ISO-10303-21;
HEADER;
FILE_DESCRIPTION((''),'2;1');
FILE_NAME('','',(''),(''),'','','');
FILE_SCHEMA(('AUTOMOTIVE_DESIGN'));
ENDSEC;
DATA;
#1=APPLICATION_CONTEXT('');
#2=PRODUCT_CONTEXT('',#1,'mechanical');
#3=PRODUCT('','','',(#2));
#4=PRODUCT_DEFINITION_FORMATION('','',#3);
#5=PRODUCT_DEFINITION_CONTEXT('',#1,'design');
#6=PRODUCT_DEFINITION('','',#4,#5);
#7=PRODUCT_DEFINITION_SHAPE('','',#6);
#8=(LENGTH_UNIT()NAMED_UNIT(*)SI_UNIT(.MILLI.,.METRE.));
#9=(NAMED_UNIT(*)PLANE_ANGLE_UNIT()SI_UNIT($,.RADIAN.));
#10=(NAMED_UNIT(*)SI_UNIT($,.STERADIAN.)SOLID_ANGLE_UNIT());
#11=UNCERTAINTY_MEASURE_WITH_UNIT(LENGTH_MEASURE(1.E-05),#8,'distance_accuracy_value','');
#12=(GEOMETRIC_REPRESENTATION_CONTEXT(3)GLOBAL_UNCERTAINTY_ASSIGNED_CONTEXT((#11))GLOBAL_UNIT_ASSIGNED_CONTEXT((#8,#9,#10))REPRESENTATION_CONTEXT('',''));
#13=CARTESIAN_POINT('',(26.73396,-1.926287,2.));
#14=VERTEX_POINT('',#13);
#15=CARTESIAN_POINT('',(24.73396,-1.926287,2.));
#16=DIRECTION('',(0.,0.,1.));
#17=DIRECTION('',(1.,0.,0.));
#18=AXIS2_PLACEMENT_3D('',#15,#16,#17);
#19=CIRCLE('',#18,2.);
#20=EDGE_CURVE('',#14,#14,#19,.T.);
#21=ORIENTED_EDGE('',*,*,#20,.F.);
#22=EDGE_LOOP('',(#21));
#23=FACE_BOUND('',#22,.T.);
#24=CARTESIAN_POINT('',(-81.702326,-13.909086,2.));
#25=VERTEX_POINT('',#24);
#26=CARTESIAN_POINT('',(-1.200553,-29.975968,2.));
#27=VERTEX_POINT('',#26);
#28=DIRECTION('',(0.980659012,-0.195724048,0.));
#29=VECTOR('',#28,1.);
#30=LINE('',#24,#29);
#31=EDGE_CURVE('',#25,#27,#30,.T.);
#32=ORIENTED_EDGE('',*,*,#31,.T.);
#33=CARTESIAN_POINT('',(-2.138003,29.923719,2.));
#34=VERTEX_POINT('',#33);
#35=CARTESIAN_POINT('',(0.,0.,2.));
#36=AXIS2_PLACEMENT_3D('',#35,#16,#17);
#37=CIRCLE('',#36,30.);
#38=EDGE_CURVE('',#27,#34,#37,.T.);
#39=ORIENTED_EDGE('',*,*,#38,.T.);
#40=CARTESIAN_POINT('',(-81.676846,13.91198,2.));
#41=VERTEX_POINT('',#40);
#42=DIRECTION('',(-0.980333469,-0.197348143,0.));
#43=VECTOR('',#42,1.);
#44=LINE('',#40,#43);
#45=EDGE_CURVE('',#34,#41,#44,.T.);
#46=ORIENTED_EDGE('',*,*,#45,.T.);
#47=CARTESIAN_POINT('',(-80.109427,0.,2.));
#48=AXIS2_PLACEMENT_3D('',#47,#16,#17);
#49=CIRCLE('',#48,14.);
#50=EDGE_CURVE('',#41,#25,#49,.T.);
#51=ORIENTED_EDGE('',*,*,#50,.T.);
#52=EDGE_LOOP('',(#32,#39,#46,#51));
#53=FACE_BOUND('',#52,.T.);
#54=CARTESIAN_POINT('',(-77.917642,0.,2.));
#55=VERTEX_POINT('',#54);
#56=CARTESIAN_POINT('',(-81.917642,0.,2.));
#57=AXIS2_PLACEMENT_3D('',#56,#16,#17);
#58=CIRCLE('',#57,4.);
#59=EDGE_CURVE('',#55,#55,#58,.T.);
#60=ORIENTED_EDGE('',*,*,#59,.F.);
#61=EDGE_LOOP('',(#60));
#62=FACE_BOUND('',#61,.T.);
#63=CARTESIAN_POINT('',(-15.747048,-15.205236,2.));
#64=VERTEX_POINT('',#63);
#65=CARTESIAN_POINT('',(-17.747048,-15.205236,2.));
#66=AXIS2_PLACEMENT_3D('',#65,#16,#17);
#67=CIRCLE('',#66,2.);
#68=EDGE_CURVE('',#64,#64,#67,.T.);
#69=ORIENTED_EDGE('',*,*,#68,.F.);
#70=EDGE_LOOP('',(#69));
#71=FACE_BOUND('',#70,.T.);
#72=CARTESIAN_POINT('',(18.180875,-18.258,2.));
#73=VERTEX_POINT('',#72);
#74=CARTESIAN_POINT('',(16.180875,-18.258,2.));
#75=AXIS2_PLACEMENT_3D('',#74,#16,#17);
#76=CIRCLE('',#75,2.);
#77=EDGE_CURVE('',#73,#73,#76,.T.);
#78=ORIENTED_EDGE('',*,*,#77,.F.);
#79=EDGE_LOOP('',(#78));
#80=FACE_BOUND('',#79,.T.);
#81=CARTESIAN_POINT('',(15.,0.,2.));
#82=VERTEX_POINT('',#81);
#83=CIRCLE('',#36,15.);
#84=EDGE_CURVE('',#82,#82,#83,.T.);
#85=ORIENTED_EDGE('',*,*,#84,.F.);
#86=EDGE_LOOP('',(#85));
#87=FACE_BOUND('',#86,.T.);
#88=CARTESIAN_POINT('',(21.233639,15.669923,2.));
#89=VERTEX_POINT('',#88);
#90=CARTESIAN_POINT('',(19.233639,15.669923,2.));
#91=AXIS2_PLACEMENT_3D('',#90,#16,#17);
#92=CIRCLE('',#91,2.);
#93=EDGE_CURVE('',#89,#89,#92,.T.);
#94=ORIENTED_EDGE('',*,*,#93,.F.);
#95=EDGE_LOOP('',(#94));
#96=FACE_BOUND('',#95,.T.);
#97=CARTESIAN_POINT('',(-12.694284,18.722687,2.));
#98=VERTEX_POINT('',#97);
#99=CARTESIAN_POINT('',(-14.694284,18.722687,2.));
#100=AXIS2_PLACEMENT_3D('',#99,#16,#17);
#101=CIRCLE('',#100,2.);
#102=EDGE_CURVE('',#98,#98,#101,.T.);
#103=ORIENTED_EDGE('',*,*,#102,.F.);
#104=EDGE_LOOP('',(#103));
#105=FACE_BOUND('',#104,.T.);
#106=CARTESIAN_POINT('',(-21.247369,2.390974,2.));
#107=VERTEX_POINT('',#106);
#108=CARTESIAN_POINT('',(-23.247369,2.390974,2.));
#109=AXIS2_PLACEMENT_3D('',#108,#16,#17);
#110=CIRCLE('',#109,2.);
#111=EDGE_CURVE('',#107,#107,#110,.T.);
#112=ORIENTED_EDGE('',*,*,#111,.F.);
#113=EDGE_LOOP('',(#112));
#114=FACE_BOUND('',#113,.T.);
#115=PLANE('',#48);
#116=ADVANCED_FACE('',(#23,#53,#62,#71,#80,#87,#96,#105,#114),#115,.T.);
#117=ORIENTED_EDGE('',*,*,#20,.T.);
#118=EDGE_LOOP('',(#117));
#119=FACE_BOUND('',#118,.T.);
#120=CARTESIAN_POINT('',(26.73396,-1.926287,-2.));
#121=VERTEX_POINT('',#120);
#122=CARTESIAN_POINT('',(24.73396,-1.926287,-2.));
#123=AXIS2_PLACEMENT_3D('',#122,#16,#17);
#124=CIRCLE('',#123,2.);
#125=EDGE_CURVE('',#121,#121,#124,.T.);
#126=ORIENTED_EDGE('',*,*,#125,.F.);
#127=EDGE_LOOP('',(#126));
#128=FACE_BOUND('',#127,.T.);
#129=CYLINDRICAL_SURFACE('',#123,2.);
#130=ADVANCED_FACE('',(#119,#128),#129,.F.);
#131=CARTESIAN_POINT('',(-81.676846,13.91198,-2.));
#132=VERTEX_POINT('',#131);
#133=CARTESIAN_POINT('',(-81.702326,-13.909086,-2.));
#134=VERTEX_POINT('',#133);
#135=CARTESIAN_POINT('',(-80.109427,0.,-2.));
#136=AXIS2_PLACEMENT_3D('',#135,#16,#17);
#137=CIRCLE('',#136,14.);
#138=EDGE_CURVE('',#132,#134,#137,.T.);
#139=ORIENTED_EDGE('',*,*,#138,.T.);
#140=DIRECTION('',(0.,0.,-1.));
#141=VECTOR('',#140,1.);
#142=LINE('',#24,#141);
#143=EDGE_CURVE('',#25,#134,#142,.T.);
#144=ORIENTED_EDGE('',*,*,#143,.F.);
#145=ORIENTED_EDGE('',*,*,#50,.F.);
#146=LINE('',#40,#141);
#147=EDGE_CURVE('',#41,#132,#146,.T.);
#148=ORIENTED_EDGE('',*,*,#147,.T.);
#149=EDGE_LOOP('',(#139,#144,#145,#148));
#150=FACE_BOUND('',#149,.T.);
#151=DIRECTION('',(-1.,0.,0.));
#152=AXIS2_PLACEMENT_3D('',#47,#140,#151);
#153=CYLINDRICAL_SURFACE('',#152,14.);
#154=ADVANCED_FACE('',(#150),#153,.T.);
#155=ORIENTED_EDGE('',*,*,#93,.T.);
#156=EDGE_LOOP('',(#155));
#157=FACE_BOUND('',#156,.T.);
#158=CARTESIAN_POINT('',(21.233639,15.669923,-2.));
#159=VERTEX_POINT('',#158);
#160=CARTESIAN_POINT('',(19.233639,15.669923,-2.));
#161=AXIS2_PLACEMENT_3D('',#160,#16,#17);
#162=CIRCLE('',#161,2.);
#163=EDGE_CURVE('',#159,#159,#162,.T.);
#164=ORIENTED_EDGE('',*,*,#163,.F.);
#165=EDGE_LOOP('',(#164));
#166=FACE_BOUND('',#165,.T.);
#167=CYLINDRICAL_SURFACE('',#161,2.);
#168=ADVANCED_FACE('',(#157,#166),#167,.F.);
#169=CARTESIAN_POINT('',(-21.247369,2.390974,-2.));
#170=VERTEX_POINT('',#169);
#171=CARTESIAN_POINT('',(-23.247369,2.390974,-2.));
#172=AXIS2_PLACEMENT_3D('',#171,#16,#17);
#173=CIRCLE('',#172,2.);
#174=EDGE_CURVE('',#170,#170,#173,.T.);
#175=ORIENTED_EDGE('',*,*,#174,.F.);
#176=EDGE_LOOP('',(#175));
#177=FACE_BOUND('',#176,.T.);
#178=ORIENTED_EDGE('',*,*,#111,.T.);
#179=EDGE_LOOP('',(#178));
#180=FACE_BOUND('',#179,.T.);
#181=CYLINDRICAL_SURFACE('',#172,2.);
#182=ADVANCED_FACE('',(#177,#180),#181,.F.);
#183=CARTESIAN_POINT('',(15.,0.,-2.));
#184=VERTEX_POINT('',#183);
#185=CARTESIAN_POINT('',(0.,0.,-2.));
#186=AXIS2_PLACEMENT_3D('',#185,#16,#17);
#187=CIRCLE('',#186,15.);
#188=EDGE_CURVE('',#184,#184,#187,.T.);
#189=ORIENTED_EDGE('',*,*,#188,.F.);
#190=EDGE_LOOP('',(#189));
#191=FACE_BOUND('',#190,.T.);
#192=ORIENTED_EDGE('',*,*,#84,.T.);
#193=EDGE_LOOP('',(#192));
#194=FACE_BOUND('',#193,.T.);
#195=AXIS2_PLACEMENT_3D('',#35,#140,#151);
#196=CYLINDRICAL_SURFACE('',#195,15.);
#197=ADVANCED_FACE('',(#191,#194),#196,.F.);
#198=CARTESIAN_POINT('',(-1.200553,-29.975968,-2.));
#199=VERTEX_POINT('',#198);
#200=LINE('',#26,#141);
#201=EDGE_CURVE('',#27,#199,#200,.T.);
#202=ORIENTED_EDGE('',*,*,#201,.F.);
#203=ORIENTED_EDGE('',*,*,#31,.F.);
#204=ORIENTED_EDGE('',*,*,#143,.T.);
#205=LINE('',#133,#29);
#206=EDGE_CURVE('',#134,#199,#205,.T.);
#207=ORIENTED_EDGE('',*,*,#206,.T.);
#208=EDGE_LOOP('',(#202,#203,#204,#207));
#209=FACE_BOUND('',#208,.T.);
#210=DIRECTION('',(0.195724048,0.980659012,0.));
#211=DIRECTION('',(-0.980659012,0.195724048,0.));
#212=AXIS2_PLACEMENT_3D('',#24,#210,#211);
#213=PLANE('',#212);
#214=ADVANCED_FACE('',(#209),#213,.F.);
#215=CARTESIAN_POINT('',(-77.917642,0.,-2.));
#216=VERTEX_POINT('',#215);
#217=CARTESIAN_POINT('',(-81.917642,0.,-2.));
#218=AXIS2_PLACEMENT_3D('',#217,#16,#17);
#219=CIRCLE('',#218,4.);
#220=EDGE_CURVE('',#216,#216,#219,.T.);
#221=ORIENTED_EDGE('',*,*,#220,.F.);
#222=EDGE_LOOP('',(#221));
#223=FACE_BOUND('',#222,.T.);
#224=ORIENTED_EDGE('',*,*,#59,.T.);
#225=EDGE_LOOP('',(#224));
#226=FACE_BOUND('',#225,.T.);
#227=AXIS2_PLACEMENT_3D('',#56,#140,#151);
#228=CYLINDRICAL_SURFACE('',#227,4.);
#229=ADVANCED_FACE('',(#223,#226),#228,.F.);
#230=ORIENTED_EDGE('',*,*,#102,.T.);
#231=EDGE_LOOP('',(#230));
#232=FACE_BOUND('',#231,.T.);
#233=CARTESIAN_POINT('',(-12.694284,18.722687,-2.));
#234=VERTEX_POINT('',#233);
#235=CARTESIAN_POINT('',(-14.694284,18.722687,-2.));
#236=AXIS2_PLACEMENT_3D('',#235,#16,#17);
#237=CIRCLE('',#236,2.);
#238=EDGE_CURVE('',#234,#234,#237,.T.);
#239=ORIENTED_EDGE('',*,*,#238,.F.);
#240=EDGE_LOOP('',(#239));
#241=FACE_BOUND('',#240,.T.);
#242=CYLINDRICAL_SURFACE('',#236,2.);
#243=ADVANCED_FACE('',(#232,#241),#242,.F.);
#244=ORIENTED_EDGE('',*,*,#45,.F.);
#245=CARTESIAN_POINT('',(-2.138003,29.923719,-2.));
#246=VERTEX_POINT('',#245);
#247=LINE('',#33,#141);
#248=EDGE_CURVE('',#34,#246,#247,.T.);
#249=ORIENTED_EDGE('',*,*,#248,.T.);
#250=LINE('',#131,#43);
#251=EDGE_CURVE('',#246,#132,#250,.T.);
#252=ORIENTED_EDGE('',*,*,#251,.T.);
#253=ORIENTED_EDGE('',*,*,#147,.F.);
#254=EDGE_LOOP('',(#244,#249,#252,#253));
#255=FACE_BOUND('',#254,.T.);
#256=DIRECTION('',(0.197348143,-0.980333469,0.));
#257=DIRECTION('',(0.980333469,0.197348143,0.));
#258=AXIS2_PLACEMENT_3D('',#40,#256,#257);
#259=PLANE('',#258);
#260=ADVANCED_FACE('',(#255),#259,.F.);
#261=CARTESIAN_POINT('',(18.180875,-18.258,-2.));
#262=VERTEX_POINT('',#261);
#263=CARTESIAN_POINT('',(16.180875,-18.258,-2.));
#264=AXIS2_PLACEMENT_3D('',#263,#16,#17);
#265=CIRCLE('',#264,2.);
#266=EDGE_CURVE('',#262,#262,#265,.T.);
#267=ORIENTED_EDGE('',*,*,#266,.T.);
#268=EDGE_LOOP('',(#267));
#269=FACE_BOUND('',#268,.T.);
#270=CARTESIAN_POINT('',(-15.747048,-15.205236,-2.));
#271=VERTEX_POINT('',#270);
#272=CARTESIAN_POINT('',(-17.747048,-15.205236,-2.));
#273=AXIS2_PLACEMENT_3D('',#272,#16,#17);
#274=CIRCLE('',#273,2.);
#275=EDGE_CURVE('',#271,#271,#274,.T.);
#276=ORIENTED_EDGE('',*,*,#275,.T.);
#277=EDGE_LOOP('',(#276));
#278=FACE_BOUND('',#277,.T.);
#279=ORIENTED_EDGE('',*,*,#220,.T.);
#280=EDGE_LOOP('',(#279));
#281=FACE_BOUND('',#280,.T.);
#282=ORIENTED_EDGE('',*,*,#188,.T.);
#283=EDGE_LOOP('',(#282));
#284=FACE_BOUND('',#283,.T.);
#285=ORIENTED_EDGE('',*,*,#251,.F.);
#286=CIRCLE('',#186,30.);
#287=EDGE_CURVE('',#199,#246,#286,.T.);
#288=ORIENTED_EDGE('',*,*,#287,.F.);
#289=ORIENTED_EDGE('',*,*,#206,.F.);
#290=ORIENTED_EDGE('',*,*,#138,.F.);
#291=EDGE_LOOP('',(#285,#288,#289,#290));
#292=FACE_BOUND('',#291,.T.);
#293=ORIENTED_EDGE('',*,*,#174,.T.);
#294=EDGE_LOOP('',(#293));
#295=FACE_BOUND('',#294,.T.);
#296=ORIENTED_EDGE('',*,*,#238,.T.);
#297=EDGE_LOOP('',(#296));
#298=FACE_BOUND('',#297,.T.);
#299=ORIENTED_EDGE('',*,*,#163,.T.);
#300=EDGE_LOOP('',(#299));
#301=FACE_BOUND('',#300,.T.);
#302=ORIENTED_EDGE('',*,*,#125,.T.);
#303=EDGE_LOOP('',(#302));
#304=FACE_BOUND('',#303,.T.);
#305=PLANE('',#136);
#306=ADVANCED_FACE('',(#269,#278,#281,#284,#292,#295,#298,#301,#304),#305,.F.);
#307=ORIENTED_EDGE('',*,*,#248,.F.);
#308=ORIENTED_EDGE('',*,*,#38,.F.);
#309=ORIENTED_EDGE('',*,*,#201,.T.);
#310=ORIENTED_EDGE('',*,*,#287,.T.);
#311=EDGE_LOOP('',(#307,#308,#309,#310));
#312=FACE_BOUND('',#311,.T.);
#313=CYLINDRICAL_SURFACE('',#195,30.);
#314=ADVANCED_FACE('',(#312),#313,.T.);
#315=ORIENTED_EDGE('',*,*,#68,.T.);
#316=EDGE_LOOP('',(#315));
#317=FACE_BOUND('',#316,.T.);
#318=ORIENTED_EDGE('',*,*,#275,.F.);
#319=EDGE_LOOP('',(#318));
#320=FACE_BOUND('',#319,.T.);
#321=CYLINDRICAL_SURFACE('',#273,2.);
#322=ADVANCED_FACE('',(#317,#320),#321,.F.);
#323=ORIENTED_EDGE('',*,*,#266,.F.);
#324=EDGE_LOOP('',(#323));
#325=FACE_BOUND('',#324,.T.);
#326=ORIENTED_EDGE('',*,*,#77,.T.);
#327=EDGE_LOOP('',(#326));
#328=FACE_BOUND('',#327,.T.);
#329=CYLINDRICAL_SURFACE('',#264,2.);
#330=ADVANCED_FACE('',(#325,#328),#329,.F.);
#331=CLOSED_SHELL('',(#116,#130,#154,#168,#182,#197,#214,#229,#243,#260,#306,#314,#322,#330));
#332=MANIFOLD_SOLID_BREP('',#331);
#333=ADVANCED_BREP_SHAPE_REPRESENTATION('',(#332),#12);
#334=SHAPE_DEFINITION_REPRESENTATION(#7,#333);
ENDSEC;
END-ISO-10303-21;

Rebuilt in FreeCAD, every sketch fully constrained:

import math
import FreeCAD as App
import Part
import Sketcher
from FreeCAD import Vector

doc = App.newDocument("Part")
body = doc.addObject("PartDesign::Body", "Body")

# Sketch on XY plane
sketch1 = body.newObject("Sketcher::SketchObject", "Sketch")
sketch1.AttachmentSupport = (doc.getObject("XY_Plane"), [""])
sketch1.MapMode = "FlatFace"
sketch1.AttachmentOffset = App.Placement(Vector(0, 0, -2), App.Rotation())
sketch1.addGeometry(Part.LineSegment(Vector(-2.138003, 29.923719, 0), Vector(-81.676846, 13.91198, 0)), False)
sketch1.addGeometry(Part.ArcOfCircle(Part.Circle(Vector(-80.109427, 0, 0), Vector(0, 0, 1), 14), math.radians(96.428226), math.radians(263.466828)), False)
sketch1.addGeometry(Part.LineSegment(Vector(-81.702326, -13.909086, 0), Vector(-1.200553, -29.975968, 0)), False)
sketch1.addGeometry(Part.ArcOfCircle(Part.Circle(Vector(0, 0, 0), Vector(0, 0, 1), 30), math.radians(-92.2935), math.radians(94.086749)), False)
sketch1.addGeometry(Part.Circle(Vector(0, 0, 0), Vector(0, 0, 1), 15), False)
sketch1.addGeometry(Part.Circle(Vector(-81.917642, 0, 0), Vector(0, 0, 1), 4), False)
sketch1.addConstraint(Sketcher.Constraint("Coincident", 0, 2, 1, 1))
sketch1.addConstraint(Sketcher.Constraint("Coincident", 1, 2, 2, 1))
sketch1.addConstraint(Sketcher.Constraint("Coincident", 2, 2, 3, 1))
sketch1.addConstraint(Sketcher.Constraint("Coincident", 3, 2, 0, 1))
sketch1.addConstraint(Sketcher.Constraint("Coincident", 3, 3, -1, 1))
sketch1.addConstraint(Sketcher.Constraint("Coincident", 4, 3, -1, 1))
sketch1.addConstraint(Sketcher.Constraint("PointOnObject", 1, 3, -1))
sketch1.addConstraint(Sketcher.Constraint("PointOnObject", 5, 3, -1))
sketch1.addConstraint(Sketcher.Constraint("Diameter", 4, 30.0))
sketch1.addConstraint(Sketcher.Constraint("Diameter", 5, 8.0))
sketch1.addConstraint(Sketcher.Constraint("Radius", 1, 14.0))
sketch1.addConstraint(Sketcher.Constraint("Radius", 3, 30.0))
sketch1.addConstraint(Sketcher.Constraint("DistanceX", 1, 2, 1, 3, 1.592898))
sketch1.addConstraint(Sketcher.Constraint("DistanceX", 5, 3, -1, 1, 81.917642))
sketch1.addConstraint(Sketcher.Constraint("DistanceY", -1, 1, 0, 2, 13.91198))
sketch1.addConstraint(Sketcher.Constraint("DistanceY", 2, 2, -1, 1, 29.975968))
sketch1.addConstraint(Sketcher.Constraint("DistanceY", -1, 1, 3, 2, 29.923719))
sketch1.addConstraint(Sketcher.Constraint("Distance", 0, 81.134477))
pad1 = body.newObject("PartDesign::Pad", "Pad")
pad1.Profile = sketch1
pad1.Length = 4

# Sketch on XY plane
sketch2 = body.newObject("Sketcher::SketchObject", "Sketch001")
sketch2.AttachmentSupport = (doc.getObject("XY_Plane"), [""])
sketch2.MapMode = "FlatFace"
sketch2.AttachmentOffset = App.Placement(Vector(0, 0, 2), App.Rotation())
sketch2.addGeometry(Part.Circle(Vector(-17.747048, -15.205236, 0), Vector(0, 0, 1), 2), False)
sketch2.addGeometry(Part.Circle(Vector(-23.247369, 2.390974, 0), Vector(0, 0, 1), 2), False)
sketch2.addGeometry(Part.Circle(Vector(-14.694284, 18.722687, 0), Vector(0, 0, 1), 2), False)
sketch2.addGeometry(Part.Circle(Vector(19.233639, 15.669923, 0), Vector(0, 0, 1), 2), False)
sketch2.addGeometry(Part.Circle(Vector(24.73396, -1.926287, 0), Vector(0, 0, 1), 2), False)
sketch2.addGeometry(Part.Circle(Vector(16.180875, -18.258, 0), Vector(0, 0, 1), 2), False)
sketch2.addConstraint(Sketcher.Constraint("Equal", 0, 1))
sketch2.addConstraint(Sketcher.Constraint("Equal", 1, 2))
sketch2.addConstraint(Sketcher.Constraint("Equal", 2, 3))
sketch2.addConstraint(Sketcher.Constraint("Equal", 3, 4))
sketch2.addConstraint(Sketcher.Constraint("Equal", 4, 5))
sketch2.addConstraint(Sketcher.Constraint("Diameter", 0, 4.0))
sketch2.addConstraint(Sketcher.Constraint("DistanceY", 5, 3, -1, 1, 18.258))
sketch2.addConstraint(Sketcher.Constraint("DistanceX", 1, 3, -1, 1, 23.247369))
sketch2.addConstraint(Sketcher.Constraint("DistanceX", -1, 1, 3, 3, 19.233639))
sketch2.addConstraint(Sketcher.Constraint("DistanceX", -1, 1, 4, 3, 24.73396))
sketch2.addConstraint(Sketcher.Constraint("DistanceX", 1, 3, 0, 3, 5.500321))
sketch2.addConstraint(Sketcher.Constraint("DistanceY", 0, 3, 1, 3, 17.59621))
sketch2.addConstraint(Sketcher.Constraint("DistanceY", 1, 3, 3, 3, 13.278949))
sketch2.addConstraint(Sketcher.Constraint("DistanceY", 4, 3, 3, 3, 17.59621))
sketch2.addConstraint(Sketcher.Constraint("DistanceX", 2, 3, 5, 3, 30.875159))
sketch2.addConstraint(Sketcher.Constraint("DistanceY", 0, 3, -1, 1, 15.205236))
sketch2.addConstraint(Sketcher.Constraint("DistanceX", 2, 3, -1, 1, 14.694284))
sketch2.addConstraint(Sketcher.Constraint("DistanceY", -1, 1, 2, 3, 18.722687))
pocket1 = body.newObject("PartDesign::Pocket", "Pocket")
pocket1.Profile = sketch2
pocket1.Type = "ThroughAll"

doc.recompute()
